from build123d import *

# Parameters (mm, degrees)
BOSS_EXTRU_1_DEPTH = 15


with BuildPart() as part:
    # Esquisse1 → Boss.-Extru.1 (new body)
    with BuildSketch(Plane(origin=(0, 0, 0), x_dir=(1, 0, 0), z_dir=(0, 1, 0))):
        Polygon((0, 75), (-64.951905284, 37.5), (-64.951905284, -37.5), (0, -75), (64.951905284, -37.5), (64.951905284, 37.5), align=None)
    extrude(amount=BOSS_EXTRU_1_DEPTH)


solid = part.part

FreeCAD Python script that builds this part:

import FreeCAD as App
import Part
import Sketcher

V = App.Vector
Q = App.Units.Quantity


def add_polygon(sketch, points):
    """Adds a closed chain of lines whose ends are joined by coincident constraints."""
    first, n = sketch.GeometryCount, len(points)
    for a, b in zip(points, points[1:] + points[:1]):
        sketch.addGeometry(Part.LineSegment(App.Vector(*a, 0), App.Vector(*b, 0)), False)
    for i in range(n):
        sketch.addConstraint(Sketcher.Constraint("Coincident", first + i, 2, first + (i + 1) % n, 1))

doc = App.newDocument("Part")
body = doc.addObject("PartDesign::Body", "Body")

# Sketch on XZ plane
sketch1 = body.newObject("Sketcher::SketchObject", "Sketch")
sketch1.AttachmentSupport = (doc.getObject("XZ_Plane"), [""])
sketch1.MapMode = "FlatFace"
add_polygon(sketch1, [(0, -75), (-64.951905, -37.5), (-64.951905, 37.5), (0, 75), (64.951905, 37.5), (64.951905, -37.5)])  # lines 0-5
sketch1.addConstraint(Sketcher.Constraint("Vertical", 1))
sketch1.addConstraint(Sketcher.Constraint("Vertical", 4))
sketch1.addConstraint(Sketcher.Constraint("Symmetric", 0, 2, 3, 2, -1, 1))
sketch1.addConstraint(Sketcher.Constraint("Symmetric", 2, 2, 5, 2, -1, 1))
sketch1.addConstraint(Sketcher.Constraint("PointOnObject", 2, 2, -2))
sketch1.addConstraint(Sketcher.Constraint("Parallel", 2, 5))
sketch1.addConstraint(Sketcher.Constraint("Horizontal", 1, 2, 3, 2))
sketch1.addConstraint(Sketcher.Constraint("DistanceY", 1, 1, 1, 2, 75.0))
sketch1.addConstraint(Sketcher.Constraint("Angle", 0, Q("150 deg")))
sketch1.addConstraint(Sketcher.Constraint("Distance", 0, 75.0))
pad1 = body.newObject("PartDesign::Pad", "Pad")
pad1.Profile = sketch1
pad1.Length = 15
pad1.Reversed = True

doc.recompute()
